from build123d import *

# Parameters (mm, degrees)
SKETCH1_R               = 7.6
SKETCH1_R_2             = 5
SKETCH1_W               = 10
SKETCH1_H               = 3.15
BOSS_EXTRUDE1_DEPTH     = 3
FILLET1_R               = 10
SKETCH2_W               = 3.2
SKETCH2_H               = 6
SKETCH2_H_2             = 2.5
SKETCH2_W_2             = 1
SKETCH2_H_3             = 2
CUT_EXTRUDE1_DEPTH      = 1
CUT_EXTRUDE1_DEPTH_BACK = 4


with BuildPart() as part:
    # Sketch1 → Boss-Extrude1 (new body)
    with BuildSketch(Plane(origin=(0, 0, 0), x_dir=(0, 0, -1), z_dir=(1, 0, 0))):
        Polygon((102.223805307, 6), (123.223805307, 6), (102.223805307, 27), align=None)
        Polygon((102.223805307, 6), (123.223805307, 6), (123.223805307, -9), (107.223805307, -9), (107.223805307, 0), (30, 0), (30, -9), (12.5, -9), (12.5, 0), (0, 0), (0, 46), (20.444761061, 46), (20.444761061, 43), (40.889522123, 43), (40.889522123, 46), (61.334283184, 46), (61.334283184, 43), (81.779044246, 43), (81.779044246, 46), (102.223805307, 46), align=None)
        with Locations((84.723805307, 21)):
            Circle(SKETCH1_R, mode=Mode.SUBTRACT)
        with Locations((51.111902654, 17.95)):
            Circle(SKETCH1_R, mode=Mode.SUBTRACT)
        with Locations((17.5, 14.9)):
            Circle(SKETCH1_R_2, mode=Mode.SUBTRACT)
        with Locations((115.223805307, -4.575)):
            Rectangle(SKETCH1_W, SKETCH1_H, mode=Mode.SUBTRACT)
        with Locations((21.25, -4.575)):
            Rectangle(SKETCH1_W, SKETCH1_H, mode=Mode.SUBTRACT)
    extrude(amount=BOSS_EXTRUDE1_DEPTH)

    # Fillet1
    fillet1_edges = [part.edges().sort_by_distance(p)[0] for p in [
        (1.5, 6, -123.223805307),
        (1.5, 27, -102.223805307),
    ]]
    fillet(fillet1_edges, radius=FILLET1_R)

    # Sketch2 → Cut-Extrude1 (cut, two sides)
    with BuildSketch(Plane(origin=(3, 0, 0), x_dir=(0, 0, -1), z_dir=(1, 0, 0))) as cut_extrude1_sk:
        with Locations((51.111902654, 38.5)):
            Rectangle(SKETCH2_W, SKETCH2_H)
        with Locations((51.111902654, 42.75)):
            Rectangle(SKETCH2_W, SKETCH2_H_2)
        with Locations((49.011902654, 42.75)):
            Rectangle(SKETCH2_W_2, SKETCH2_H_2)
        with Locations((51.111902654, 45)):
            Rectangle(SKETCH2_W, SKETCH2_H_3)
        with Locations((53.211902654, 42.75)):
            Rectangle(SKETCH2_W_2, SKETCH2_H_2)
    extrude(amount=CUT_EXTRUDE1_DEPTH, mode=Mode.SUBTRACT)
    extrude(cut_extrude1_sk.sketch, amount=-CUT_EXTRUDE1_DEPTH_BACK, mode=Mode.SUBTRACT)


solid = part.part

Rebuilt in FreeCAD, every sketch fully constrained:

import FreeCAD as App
import Part
import Sketcher
from FreeCAD import Vector
Q = App.Units.Quantity


def edges_at(feature, points):
    """Names of the edges that pass closest to the given points."""
    edges = feature.Shape.Edges
    near = lambda p: min(range(len(edges)), key=lambda i: edges[i].distToShape(Part.Vertex(*p))[0])
    return sorted({f"Edge{near(p) + 1}" for p in points})


def add_polygon(sketch, points):
    """Adds a closed chain of lines whose ends are joined by coincident constraints."""
    first, n = sketch.GeometryCount, len(points)
    for a, b in zip(points, points[1:] + points[:1]):
        sketch.addGeometry(Part.LineSegment(App.Vector(*a, 0), App.Vector(*b, 0)), False)
    for i in range(n):
        sketch.addConstraint(Sketcher.Constraint("Coincident", first + i, 2, first + (i + 1) % n, 1))

doc = App.newDocument("Part")
body = doc.addObject("PartDesign::Body", "Body")

# Sketch on YZ plane
sketch1 = body.newObject("Sketcher::SketchObject", "Sketch")
sketch1.AttachmentSupport = (doc.getObject("YZ_Plane"), [""])
sketch1.MapMode = "FlatFace"
add_polygon(sketch1, [(6, -123.2), (27, -102.2), (46, -102.2), (46, -81.8), (43, -81.8), (43, -61.3), (46, -61.3), (46, -40.9), (43, -40.9), (43, -20.4), (46, -20.4), (46, 0), (0, 0), (0, -12.5), (-9, -12.5), (-9, -30), (0, -30), (0, -107.2), (-9, -107.2), (-9, -123.2)])  # lines 0-19
add_polygon(sketch1, [(-6.2, -26.2), (-6.2, -16.2), (-3, -16.2), (-3, -26.2)])  # lines 20-23
add_polygon(sketch1, [(-6.2, -120.2), (-6.2, -110.2), (-3, -110.2), (-3, -120.2)])  # lines 24-27
sketch1.addGeometry(Part.Circle(Vector(14.9, -17.5, 0), Vector(0, 0, 1), 5), False)  # 28
sketch1.addGeometry(Part.Circle(Vector(17.9, -51.1, 0), Vector(0, 0, 1), 7.6), False)  # 29
sketch1.addGeometry(Part.Circle(Vector(21, -84.7, 0), Vector(0, 0, 1), 7.6), False)  # 30
sketch1.addConstraint([
    Sketcher.Constraint("Horizontal", 1),
    Sketcher.Constraint("Vertical", 2),
    Sketcher.Constraint("Horizontal", 3),
    Sketcher.Constraint("Vertical", 4),
    Sketcher.Constraint("Horizontal", 5),
    Sketcher.Constraint("Vertical", 6),
    Sketcher.Constraint("Horizontal", 7),
    Sketcher.Constraint("Vertical", 8),
    Sketcher.Constraint("Horizontal", 9),
    Sketcher.Constraint("Vertical", 10),
    Sketcher.Constraint("Horizontal", 11),
    Sketcher.Constraint("Vertical", 12),
    Sketcher.Constraint("Horizontal", 13),
    Sketcher.Constraint("Vertical", 14),
    Sketcher.Constraint("Horizontal", 15),
    Sketcher.Constraint("Vertical", 16),
    Sketcher.Constraint("Horizontal", 17),
    Sketcher.Constraint("Vertical", 18),
    Sketcher.Constraint("Horizontal", 19),
    Sketcher.Constraint("Vertical", 20),
    Sketcher.Constraint("Horizontal", 21),
    Sketcher.Constraint("Vertical", 22),
    Sketcher.Constraint("Horizontal", 23),
    Sketcher.Constraint("Vertical", 24),
    Sketcher.Constraint("Horizontal", 25),
    Sketcher.Constraint("Vertical", 26),
    Sketcher.Constraint("Horizontal", 27),
    Sketcher.Constraint("Coincident", 11, 2, -1, 1),
    Sketcher.Constraint("Equal", 29, 30),
    Sketcher.Constraint("PointOnObject", 15, 2, -2),
    Sketcher.Constraint("Vertical", 2, 2, 5, 2),
    Sketcher.Constraint("Vertical", 4, 2, 7, 2),
    Sketcher.Constraint("Vertical", 6, 2, 9, 2),
    Sketcher.Constraint("Vertical", 14, 2, 17, 2),
    Sketcher.Constraint("Vertical", 23, 2, 24, 2),
    Sketcher.Constraint("Vertical", 22, 2, 25, 2),
    Sketcher.Constraint("Equal", 2, 4),
    Sketcher.Constraint("Equal", 4, 6),
    Sketcher.Constraint("Equal", 6, 8),
    Sketcher.Constraint("Equal", 8, 10),
    Sketcher.Constraint("Equal", 22, 24),
    Sketcher.Constraint("Diameter", 28, 10.0),
    Sketcher.Constraint("Diameter", 29, 15.2),
    Sketcher.Constraint("DistanceX", 1, 1, 1, 2, 19.0),
    Sketcher.Constraint("DistanceX", 3, 2, 3, 1, 3.0),
    Sketcher.Constraint("DistanceX", 11, 2, 11, 1, 46.0),
    Sketcher.Constraint("DistanceX", 13, 2, 13, 1, 9.0),
    Sketcher.Constraint("DistanceX", 19, 1, 19, 2, 15.0),
    Sketcher.Constraint("DistanceY", 18, 2, 18, 1, 16.0),
    Sketcher.Constraint("DistanceY", 20, 1, 20, 2, 10.0),
    Sketcher.Constraint("Angle", 0, Q("45 deg")),
    Sketcher.Constraint("DistanceY", 12, 2, 12, 1, 12.5),
    Sketcher.Constraint("DistanceY", 14, 2, 14, 1, 17.5),
    Sketcher.Constraint("DistanceX", -1, 1, 30, 3, 21.0),
    Sketcher.Constraint("DistanceX", 21, 2, -1, 1, 3.0),
    Sketcher.Constraint("DistanceY", 28, 3, 12, 2, 5.0),
    Sketcher.Constraint("DistanceY", 24, 2, 17, 2, 3.0),
    Sketcher.Constraint("DistanceX", 21, 1, 21, 2, 3.15),
    Sketcher.Constraint("DistanceX", -1, 1, 28, 3, 14.9),
    Sketcher.Constraint("DistanceY", 0, 2, 30, 3, 17.5),
    Sketcher.Constraint("DistanceX", -1, 1, 29, 3, 17.95),
    Sketcher.Constraint("DistanceY", 20, 2, -1, 1, 16.25),
    Sketcher.Constraint("DistanceY", 2, 1, 2, 2, 20.444761),
    Sketcher.Constraint("DistanceY", 2, 2, 29, 3, 30.667142),
])
pad1 = body.newObject("PartDesign::Pad", "Pad")
pad1.Profile = sketch1
pad1.Length = 3
doc.recompute()

fillet = body.newObject("PartDesign::Fillet", "Fillet")
fillet.Base = (pad1, edges_at(pad1, [(1.5, 6, -123.224), (1.5, 27, -102.224)]))
fillet.Radius = 10

# Sketch on YZ plane
sketch2 = body.newObject("Sketcher::SketchObject", "Sketch001")
sketch2.AttachmentSupport = (doc.getObject("YZ_Plane"), [""])
sketch2.MapMode = "FlatFace"
sketch2.AttachmentOffset = App.Placement(Vector(0, 0, 3), App.Rotation())
add_polygon(sketch2, [(35.5, -49.5), (35.5, -52.7), (41.5, -52.7), (41.5, -53.7), (44, -53.7), (44, -52.7), (46, -52.7), (46, -49.5), (44, -49.5), (44, -48.5), (41.5, -48.5), (41.5, -49.5)])  # lines 0-11
sketch2.addConstraint([
    Sketcher.Constraint("Vertical", 0),
    Sketcher.Constraint("Horizontal", 1),
    Sketcher.Constraint("Vertical", 2),
    Sketcher.Constraint("Horizontal", 3),
    Sketcher.Constraint("Vertical", 4),
    Sketcher.Constraint("Horizontal", 5),
    Sketcher.Constraint("Vertical", 6),
    Sketcher.Constraint("Horizontal", 7),
    Sketcher.Constraint("Vertical", 8),
    Sketcher.Constraint("Horizontal", 9),
    Sketcher.Constraint("Vertical", 10),
    Sketcher.Constraint("Horizontal", 11),
    Sketcher.Constraint("Horizontal", 1, 2, 4, 2),
    Sketcher.Constraint("Horizontal", 7, 2, 10, 2),
    Sketcher.Constraint("Vertical", 4, 2, 7, 2),
    Sketcher.Constraint("Vertical", 2, 2, 9, 2),
    Sketcher.Constraint("Equal", 4, 8),
    Sketcher.Constraint("DistanceX", 1, 1, 1, 2, 6.0),
    Sketcher.Constraint("DistanceX", 5, 1, 5, 2, 2.0),
    Sketcher.Constraint("DistanceY", 2, 2, 2, 1, 1.0),
    Sketcher.Constraint("DistanceX", 3, 1, 3, 2, 2.5),
    Sketcher.Constraint("DistanceY", 0, 2, 0, 1, 3.2),
    Sketcher.Constraint("DistanceX", -1, 1, 3, 2, 44.0),
    Sketcher.Constraint("DistanceY", 0, 2, -1, 1, 52.711903),
])
pocket1 = body.newObject("PartDesign::Pocket", "Pocket")
pocket1.Profile = sketch2
pocket1.Type = "ThroughAll"
pocket1.Midplane = True

doc.recompute()
